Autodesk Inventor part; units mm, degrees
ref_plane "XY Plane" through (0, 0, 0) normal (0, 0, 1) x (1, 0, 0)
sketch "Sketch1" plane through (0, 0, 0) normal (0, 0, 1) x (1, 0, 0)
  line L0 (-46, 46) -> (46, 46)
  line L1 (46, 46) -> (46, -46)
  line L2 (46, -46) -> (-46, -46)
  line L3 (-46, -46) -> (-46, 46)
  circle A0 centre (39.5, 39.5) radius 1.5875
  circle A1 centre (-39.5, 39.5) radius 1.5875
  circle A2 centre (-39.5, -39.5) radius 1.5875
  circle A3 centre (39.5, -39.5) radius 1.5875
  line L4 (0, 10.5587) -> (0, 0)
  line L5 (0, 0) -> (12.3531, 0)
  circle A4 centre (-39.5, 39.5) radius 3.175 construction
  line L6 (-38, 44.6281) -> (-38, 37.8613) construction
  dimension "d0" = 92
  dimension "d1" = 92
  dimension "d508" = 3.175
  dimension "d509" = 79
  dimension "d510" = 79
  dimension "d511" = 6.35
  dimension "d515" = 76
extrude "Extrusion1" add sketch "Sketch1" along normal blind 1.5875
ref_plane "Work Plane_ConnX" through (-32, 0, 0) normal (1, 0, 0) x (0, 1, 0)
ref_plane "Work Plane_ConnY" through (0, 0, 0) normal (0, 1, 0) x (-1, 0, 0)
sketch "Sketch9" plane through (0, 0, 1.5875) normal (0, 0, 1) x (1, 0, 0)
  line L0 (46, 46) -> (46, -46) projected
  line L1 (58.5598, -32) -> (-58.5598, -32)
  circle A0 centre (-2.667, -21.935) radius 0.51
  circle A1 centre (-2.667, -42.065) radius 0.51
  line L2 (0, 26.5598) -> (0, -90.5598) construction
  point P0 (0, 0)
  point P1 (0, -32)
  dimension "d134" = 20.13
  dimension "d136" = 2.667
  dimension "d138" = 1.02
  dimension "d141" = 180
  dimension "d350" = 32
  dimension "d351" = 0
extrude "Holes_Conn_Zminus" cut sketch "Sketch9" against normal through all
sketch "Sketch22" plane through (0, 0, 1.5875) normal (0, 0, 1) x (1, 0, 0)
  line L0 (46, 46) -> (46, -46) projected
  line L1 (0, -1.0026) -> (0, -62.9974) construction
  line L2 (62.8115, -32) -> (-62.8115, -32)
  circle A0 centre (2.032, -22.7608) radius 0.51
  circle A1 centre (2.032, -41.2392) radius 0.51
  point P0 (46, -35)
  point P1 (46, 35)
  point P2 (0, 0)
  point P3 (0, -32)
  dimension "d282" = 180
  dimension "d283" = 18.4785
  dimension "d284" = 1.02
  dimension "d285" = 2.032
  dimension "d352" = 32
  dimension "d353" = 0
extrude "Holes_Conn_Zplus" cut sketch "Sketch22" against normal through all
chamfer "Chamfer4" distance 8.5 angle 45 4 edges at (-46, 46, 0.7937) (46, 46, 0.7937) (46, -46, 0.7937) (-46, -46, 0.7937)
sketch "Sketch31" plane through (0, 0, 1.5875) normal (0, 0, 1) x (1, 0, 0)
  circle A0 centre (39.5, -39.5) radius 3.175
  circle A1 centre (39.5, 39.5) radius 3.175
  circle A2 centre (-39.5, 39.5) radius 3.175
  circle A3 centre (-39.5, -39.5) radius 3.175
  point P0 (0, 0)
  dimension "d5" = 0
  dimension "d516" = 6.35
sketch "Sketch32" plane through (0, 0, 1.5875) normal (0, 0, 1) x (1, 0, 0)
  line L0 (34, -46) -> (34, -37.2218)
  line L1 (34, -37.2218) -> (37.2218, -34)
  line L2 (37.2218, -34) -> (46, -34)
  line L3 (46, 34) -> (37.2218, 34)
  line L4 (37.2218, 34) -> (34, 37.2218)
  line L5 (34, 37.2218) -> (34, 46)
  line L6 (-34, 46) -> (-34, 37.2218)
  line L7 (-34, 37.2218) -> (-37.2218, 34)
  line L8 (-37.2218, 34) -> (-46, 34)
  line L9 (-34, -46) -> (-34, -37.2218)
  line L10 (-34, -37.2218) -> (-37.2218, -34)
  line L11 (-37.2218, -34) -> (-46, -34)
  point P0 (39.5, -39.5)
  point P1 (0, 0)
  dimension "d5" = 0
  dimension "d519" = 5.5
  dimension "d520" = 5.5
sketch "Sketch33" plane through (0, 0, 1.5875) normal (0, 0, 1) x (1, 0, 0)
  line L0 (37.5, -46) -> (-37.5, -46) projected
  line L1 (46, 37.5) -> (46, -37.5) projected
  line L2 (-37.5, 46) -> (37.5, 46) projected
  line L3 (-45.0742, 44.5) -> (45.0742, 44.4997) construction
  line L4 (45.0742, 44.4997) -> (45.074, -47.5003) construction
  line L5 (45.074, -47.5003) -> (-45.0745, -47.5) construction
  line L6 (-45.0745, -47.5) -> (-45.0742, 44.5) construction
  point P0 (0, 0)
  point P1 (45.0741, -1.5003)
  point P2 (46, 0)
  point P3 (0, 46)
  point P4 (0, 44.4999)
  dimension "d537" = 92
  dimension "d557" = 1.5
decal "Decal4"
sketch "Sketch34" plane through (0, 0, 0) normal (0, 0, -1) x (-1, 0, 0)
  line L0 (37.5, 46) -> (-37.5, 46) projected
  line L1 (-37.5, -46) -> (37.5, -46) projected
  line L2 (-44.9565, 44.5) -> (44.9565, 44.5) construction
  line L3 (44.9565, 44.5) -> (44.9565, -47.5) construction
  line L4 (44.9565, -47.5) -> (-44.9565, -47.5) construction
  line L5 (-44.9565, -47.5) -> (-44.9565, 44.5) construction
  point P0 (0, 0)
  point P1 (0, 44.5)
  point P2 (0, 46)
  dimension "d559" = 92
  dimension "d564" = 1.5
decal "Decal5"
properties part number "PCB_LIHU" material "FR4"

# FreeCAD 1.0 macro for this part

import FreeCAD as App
import Part
import Sketcher
from FreeCAD import Vector


def edges_at(feature, points):
    """Names of the edges that pass closest to the given points."""
    edges = feature.Shape.Edges
    near = lambda p: min(range(len(edges)), key=lambda i: edges[i].distToShape(Part.Vertex(*p))[0])
    return sorted({f"Edge{near(p) + 1}" for p in points})


def add_polygon(sketch, points):
    """Adds a closed chain of lines whose ends are joined by coincident constraints."""
    first, n = sketch.GeometryCount, len(points)
    for a, b in zip(points, points[1:] + points[:1]):
        sketch.addGeometry(Part.LineSegment(App.Vector(*a, 0), App.Vector(*b, 0)), False)
    for i in range(n):
        sketch.addConstraint(Sketcher.Constraint("Coincident", first + i, 2, first + (i + 1) % n, 1))

doc = App.newDocument("Part")
params = doc.addObject("Spreadsheet::Sheet", "Params")
for row, (alias, value) in enumerate([
    ("sketch1_width", "92 mm"),
    ("pad1_length", "1.5875 mm"),
    ("sketch2_diameter", "1.02 mm"),
    ("sketch3_diameter", "1.02 mm"),
    ("chamfer_size", "8.5 mm"),
], start=1):
    params.set(f"A{row}", alias)
    params.set(f"B{row}", "=" + value)
    params.setAlias(f"B{row}", alias)

body = doc.addObject("PartDesign::Body", "Body")

sketch1 = doc.addObject("Sketcher::SketchObject", "Sketch")
body.addObject(sketch1)
sketch1.AttachmentSupport = (doc.XY_Plane, [""])
sketch1.MapMode = "FlatFace"
add_polygon(sketch1, [(46, 46), (-46, 46), (-46, -46), (46, -46)])
sketch1.addGeometry(Part.Circle(Vector(-39.5, -39.5, 0), Vector(0, 0, 1), 1.5875), False)
sketch1.addGeometry(Part.Circle(Vector(39.5, -39.5, 0), Vector(0, 0, 1), 1.5875), False)
sketch1.addGeometry(Part.Circle(Vector(-39.5, 39.5, 0), Vector(0, 0, 1), 1.5875), False)
sketch1.addGeometry(Part.Circle(Vector(39.5, 39.5, 0), Vector(0, 0, 1), 1.5875), False)
sketch1.addConstraint(Sketcher.Constraint("Horizontal", 0))
sketch1.addConstraint(Sketcher.Constraint("Vertical", 1))
sketch1.addConstraint(Sketcher.Constraint("Horizontal", 2))
sketch1.addConstraint(Sketcher.Constraint("Vertical", 3))
sketch1.addConstraint(Sketcher.Constraint("Equal", 4, 5))
sketch1.addConstraint(Sketcher.Constraint("Equal", 5, 6))
sketch1.addConstraint(Sketcher.Constraint("Equal", 6, 7))
sketch1.addConstraint(Sketcher.Constraint("Symmetric", 5, 3, 6, 3, -1, 1))
sketch1.addConstraint(Sketcher.Constraint("Symmetric", 4, 3, 7, 3, -1, 1))
sketch1.addConstraint(Sketcher.Constraint("Symmetric", 0, 2, 2, 2, -1, 1))
sketch1.addConstraint(Sketcher.Constraint("Symmetric", 4, 3, 5, 3, -2))
sketch1.addConstraint(Sketcher.Constraint("Equal", 2, 1))
sketch1.addConstraint(Sketcher.Constraint("DistanceX", 0, 2, 0, 1, 92.0))
sketch1.addConstraint(Sketcher.Constraint("Diameter", 4, 3.175))
sketch1.addConstraint(Sketcher.Constraint("DistanceX", 4, 3, 5, 3, 79.0))
sketch1.addConstraint(Sketcher.Constraint("DistanceY", 4, 3, 6, 3, 79.0))
sketch1.setExpression("Constraints[16]", "Params.sketch1_width")
pad1 = doc.addObject("PartDesign::Pad", "Pad")
body.addObject(pad1)
pad1.Profile = sketch1
pad1.setExpression("Length", "Params.pad1_length")

sketch2 = doc.addObject("Sketcher::SketchObject", "Sketch001")
body.addObject(sketch2)
sketch2.AttachmentSupport = (doc.XY_Plane, [""])
sketch2.MapMode = "FlatFace"
sketch2.AttachmentOffset = App.Placement(Vector(0, 0, 1.5875), App.Rotation())
sketch2.addGeometry(Part.Circle(Vector(-2.667, -21.935, 0), Vector(0, 0, 1), 0.51), False)
sketch2.addGeometry(Part.Circle(Vector(-2.667, -42.065, 0), Vector(0, 0, 1), 0.51), False)
sketch2.addConstraint(Sketcher.Constraint("Equal", 0, 1))
sketch2.addConstraint(Sketcher.Constraint("Vertical", 0, 3, 1, 3))
sketch2.addConstraint(Sketcher.Constraint("Diameter", 0, 1.02))
sketch2.addConstraint(Sketcher.Constraint("DistanceY", 1, 3, 0, 3, 20.13))
sketch2.addConstraint(Sketcher.Constraint("DistanceX", 0, 3, -1, 1, 2.667))
sketch2.addConstraint(Sketcher.Constraint("DistanceY", 0, 3, -1, 1, 21.935))
sketch2.setExpression("Constraints[2]", "Params.sketch2_diameter")
pocket1 = doc.addObject("PartDesign::Pocket", "Pocket")
body.addObject(pocket1)
pocket1.Profile = sketch2
pocket1.Type = "ThroughAll"

sketch3 = doc.addObject("Sketcher::SketchObject", "Sketch002")
body.addObject(sketch3)
sketch3.AttachmentSupport = (doc.XY_Plane, [""])
sketch3.MapMode = "FlatFace"
sketch3.AttachmentOffset = App.Placement(Vector(0, 0, 1.5875), App.Rotation())
sketch3.addGeometry(Part.Circle(Vector(2.032, -22.7608, 0), Vector(0, 0, 1), 0.51), False)
sketch3.addGeometry(Part.Circle(Vector(2.032, -41.2392, 0), Vector(0, 0, 1), 0.51), False)
sketch3.addConstraint(Sketcher.Constraint("Equal", 0, 1))
sketch3.addConstraint(Sketcher.Constraint("Vertical", 0, 3, 1, 3))
sketch3.addConstraint(Sketcher.Constraint("Diameter", 0, 1.02))
sketch3.addConstraint(Sketcher.Constraint("DistanceX", -1, 1, 0, 3, 2.032))
sketch3.addConstraint(Sketcher.Constraint("DistanceY", 1, 3, 0, 3, 18.4784))
sketch3.addConstraint(Sketcher.Constraint("DistanceY", 0, 3, -1, 1, 22.7608))
sketch3.setExpression("Constraints[2]", "Params.sketch3_diameter")
pocket2 = doc.addObject("PartDesign::Pocket", "Pocket001")
body.addObject(pocket2)
pocket2.Profile = sketch3
pocket2.Type = "ThroughAll"
doc.recompute()

chamfer = doc.addObject("PartDesign::Chamfer", "Chamfer")
body.addObject(chamfer)
chamfer.Base = (pocket2, edges_at(pocket2, [
    (-46, 46, 0.794),
    (46, 46, 0.794),
    (46, -46, 0.794),
    (-46, -46, 0.794),
]))
chamfer.setExpression("Size", "Params.chamfer_size")

doc.recompute()
